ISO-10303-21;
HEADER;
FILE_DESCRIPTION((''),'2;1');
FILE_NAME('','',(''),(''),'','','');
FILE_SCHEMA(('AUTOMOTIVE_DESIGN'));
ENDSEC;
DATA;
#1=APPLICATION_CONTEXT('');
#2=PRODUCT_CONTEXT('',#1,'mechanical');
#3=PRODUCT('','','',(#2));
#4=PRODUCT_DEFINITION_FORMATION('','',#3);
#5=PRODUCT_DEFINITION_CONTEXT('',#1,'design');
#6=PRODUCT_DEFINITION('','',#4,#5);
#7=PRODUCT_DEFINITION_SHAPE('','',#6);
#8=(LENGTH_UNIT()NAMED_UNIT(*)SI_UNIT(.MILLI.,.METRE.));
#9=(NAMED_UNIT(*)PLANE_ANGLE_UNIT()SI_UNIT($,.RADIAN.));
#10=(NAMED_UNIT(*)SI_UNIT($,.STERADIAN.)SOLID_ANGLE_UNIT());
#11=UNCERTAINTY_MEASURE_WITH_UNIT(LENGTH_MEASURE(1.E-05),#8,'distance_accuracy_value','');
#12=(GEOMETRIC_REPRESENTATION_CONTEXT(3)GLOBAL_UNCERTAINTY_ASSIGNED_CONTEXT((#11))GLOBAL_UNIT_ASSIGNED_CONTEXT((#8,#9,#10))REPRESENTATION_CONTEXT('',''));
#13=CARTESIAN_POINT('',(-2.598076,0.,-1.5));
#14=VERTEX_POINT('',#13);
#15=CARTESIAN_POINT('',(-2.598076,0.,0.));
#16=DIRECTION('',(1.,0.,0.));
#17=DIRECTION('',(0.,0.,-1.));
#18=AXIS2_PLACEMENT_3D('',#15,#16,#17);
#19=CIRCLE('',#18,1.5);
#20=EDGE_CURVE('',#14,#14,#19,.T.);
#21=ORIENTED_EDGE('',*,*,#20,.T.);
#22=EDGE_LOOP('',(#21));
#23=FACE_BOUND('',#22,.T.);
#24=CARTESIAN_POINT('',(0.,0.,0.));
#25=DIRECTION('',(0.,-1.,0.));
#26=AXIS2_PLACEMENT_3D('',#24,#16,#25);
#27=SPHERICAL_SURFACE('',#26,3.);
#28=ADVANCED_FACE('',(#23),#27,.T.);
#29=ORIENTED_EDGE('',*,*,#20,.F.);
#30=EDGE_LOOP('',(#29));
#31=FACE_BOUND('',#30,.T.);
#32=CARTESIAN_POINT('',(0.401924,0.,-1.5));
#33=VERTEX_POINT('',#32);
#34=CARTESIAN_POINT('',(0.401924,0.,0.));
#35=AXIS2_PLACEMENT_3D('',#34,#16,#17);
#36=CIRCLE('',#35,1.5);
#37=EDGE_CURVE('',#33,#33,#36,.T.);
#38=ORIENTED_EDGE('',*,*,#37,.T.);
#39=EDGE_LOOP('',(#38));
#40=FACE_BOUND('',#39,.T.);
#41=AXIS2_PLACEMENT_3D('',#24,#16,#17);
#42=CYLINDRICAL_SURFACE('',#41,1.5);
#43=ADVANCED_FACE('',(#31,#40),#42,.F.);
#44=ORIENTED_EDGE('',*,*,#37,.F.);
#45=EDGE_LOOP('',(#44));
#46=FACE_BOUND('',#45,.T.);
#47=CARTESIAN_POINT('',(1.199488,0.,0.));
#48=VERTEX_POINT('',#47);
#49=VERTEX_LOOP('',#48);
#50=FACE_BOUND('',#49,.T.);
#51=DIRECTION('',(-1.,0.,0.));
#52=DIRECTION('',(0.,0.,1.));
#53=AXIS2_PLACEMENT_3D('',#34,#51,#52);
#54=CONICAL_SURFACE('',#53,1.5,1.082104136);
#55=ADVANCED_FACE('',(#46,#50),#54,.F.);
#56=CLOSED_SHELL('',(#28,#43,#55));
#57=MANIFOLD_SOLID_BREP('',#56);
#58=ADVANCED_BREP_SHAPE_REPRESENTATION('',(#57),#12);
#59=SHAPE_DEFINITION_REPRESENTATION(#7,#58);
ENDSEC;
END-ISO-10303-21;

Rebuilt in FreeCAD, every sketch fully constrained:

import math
import FreeCAD as App
import Part
import Sketcher

V = App.Vector
Q = App.Units.Quantity

doc = App.newDocument("Part")
params = doc.addObject("Spreadsheet::Sheet", "Params")
for row, (alias, value) in enumerate([
    ("sketch1_radius", "3 mm"),
    ("sketch1_width", "3 mm"),
    ("revolution_angle", "360 deg"),
], start=1):
    params.set(f"A{row}", alias)
    params.set(f"B{row}", "=" + value)
    params.setAlias(f"B{row}", alias)

body = doc.addObject("PartDesign::Body", "Body")

sketch1 = doc.addObject("Sketcher::SketchObject", "Sketch")
body.addObject(sketch1)
sketch1.AttachmentSupport = (doc.XY_Plane, [""])
sketch1.MapMode = "FlatFace"
sketch1.addGeometry([
    Part.LineSegment(V(-2.598076, 1.5, 0), V(0.401924, 1.5, 0)),
    Part.LineSegment(V(0.401924, 1.5, 0), V(1.199488, 0, 0)),
    Part.LineSegment(V(1.199488, 0, 0), V(3, 0, 0)),
    Part.ArcOfCircle(Part.Circle(V(0, 0, 0), V(0, 0, 1), 3), math.radians(0), math.radians(150)),
], False)
sketch1.addConstraint([
    Sketcher.Constraint("Coincident", 0, 2, 1, 1),
    Sketcher.Constraint("Coincident", 1, 2, 2, 1),
    Sketcher.Constraint("Coincident", 2, 2, 3, 1),
    Sketcher.Constraint("Coincident", 3, 2, 0, 1),
    Sketcher.Constraint("Horizontal", 0),
    Sketcher.Constraint("Horizontal", 2),
    Sketcher.Constraint("Coincident", 3, 3, -1, 1),
    Sketcher.Constraint("PointOnObject", 1, 2, -1),
    Sketcher.Constraint("Radius", 3, 3.0),
    Sketcher.Constraint("DistanceX", 0, 1, 0, 2, 3.0),
    Sketcher.Constraint("Angle", 1, Q("-62 deg")),
    Sketcher.Constraint("DistanceY", -1, 1, 0, 2, 1.5),
])
sketch1.setExpression("Constraints[8]", "Params.sketch1_radius")
sketch1.setExpression("Constraints[9]", "Params.sketch1_width")
revolution = doc.addObject("PartDesign::Revolution", "Revolution")
body.addObject(revolution)
revolution.Profile = sketch1
revolution.ReferenceAxis = (sketch1, ["H_Axis"])
revolution.setExpression("Angle", "Params.revolution_angle")

doc.recompute()
